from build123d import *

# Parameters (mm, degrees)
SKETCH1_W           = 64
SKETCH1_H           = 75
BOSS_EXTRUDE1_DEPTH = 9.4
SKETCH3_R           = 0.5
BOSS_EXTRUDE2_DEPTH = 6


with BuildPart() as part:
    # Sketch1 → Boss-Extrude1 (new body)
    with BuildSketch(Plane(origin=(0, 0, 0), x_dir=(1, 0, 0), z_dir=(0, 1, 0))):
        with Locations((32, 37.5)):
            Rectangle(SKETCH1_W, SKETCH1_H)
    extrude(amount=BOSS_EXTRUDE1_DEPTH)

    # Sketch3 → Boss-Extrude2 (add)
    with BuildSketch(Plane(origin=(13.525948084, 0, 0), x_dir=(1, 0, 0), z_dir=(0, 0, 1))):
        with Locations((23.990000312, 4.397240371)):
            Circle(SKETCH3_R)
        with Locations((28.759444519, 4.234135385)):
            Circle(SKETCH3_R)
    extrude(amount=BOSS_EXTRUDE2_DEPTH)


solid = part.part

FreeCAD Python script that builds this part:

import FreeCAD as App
import Part
import Sketcher
Q = App.Units.Quantity

doc = App.newDocument("Part")
params = doc.addObject("Spreadsheet::Sheet", "Params")
for row, (alias, value) in enumerate([
    ("sketch1_width", "64 mm"),
    ("sketch1_height", "75 mm"),
    ("pad1_length", "9.4 mm"),
    ("sketch2_diameter", "1 mm"),
    ("pad2_length", "6 mm"),
], start=1):
    params.set(f"A{row}", alias)
    params.set(f"B{row}", "=" + value)
    params.setAlias(f"B{row}", alias)

body = doc.addObject("PartDesign::Body", "Body")

# Sketch on XZ plane
sketch1 = body.newObject("Sketcher::SketchObject", "Sketch")
sketch1.AttachmentSupport = (doc.getObject("XZ_Plane"), [""])
sketch1.MapMode = "FlatFace"
sketch1.addGeometry(Part.LineSegment(App.Vector(0, -75, 0), App.Vector(0, 0, 0)), False)
sketch1.addGeometry(Part.LineSegment(App.Vector(0, 0, 0), App.Vector(64, 0, 0)), False)
sketch1.addGeometry(Part.LineSegment(App.Vector(64, 0, 0), App.Vector(64, -75, 0)), False)
sketch1.addGeometry(Part.LineSegment(App.Vector(64, -75, 0), App.Vector(0, -75, 0)), False)
sketch1.addConstraint(Sketcher.Constraint("Coincident", 0, 2, 1, 1))
sketch1.addConstraint(Sketcher.Constraint("Coincident", 1, 2, 2, 1))
sketch1.addConstraint(Sketcher.Constraint("Coincident", 2, 2, 3, 1))
sketch1.addConstraint(Sketcher.Constraint("Coincident", 3, 2, 0, 1))
sketch1.addConstraint(Sketcher.Constraint("Vertical", 0))
sketch1.addConstraint(Sketcher.Constraint("Horizontal", 1))
sketch1.addConstraint(Sketcher.Constraint("Vertical", 2))
sketch1.addConstraint(Sketcher.Constraint("Horizontal", 3))
sketch1.addConstraint(Sketcher.Constraint("Coincident", 0, 2, -1, 1))
sketch1.addConstraint(Sketcher.Constraint("DistanceX", 1, 1, 1, 2, Q("64 mm")))
sketch1.addConstraint(Sketcher.Constraint("DistanceY", 0, 1, 0, 2, Q("75 mm")))
sketch1.setExpression("Constraints[9]", "Params.sketch1_width")
sketch1.setExpression("Constraints[10]", "Params.sketch1_height")
pad1 = body.newObject("PartDesign::Pad", "Pad")
pad1.Profile = sketch1
pad1.setExpression("Length", "Params.pad1_length")
pad1.Reversed = True

# Sketch on XY plane
sketch2 = body.newObject("Sketcher::SketchObject", "Sketch001")
sketch2.AttachmentSupport = (doc.getObject("XY_Plane"), [""])
sketch2.MapMode = "FlatFace"
sketch2.addGeometry(Part.Circle(App.Vector(37.5, 4.4, 0), App.Vector(0, 0, 1), 0.5), False)
sketch2.addGeometry(Part.Circle(App.Vector(42.3, 4.2, 0), App.Vector(0, 0, 1), 0.5), False)
sketch2.addConstraint(Sketcher.Constraint("Equal", 0, 1))
sketch2.addConstraint(Sketcher.Constraint("Diameter", 0, Q("1 mm")))
sketch2.addConstraint(Sketcher.Constraint("DistanceX", -1, 1, 0, 3, Q("37.515948 mm")))
sketch2.addConstraint(Sketcher.Constraint("DistanceY", -1, 1, 0, 3, Q("4.39724 mm")))
sketch2.addConstraint(Sketcher.Constraint("DistanceX", -1, 1, 1, 3, Q("42.285393 mm")))
sketch2.addConstraint(Sketcher.Constraint("DistanceY", -1, 1, 1, 3, Q("4.234135 mm")))
sketch2.setExpression("Constraints[1]", "Params.sketch2_diameter")
pad2 = body.newObject("PartDesign::Pad", "Pad001")
pad2.Profile = sketch2
pad2.setExpression("Length", "Params.pad2_length")

doc.recompute()
